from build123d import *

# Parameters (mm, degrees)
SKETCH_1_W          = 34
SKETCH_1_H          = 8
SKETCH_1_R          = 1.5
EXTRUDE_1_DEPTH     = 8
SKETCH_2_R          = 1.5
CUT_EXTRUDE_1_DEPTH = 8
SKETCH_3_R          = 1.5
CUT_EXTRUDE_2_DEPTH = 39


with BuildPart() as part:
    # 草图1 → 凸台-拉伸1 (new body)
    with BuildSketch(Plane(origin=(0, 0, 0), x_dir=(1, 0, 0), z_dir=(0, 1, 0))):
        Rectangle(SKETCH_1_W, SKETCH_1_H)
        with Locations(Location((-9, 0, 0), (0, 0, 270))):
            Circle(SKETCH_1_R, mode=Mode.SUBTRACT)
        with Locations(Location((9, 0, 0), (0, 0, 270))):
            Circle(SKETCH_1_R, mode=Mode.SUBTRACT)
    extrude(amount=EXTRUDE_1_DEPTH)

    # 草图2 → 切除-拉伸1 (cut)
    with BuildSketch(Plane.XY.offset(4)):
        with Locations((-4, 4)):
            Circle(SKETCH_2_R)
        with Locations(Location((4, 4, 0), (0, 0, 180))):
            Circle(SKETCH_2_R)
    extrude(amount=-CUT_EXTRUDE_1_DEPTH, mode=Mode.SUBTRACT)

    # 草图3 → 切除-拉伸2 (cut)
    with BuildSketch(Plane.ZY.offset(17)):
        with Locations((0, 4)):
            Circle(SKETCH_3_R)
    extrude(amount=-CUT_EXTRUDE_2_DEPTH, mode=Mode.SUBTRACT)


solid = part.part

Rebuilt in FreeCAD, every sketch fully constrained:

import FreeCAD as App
import Part
import Sketcher

doc = App.newDocument("Part")
params = doc.addObject("Spreadsheet::Sheet", "Params")
for row, (alias, value) in enumerate([
    ("sketch1_diameter", "3 mm"),
    ("sketch1_width", "34 mm"),
    ("sketch1_height", "8 mm"),
    ("pad1_length", "8 mm"),
    ("sketch2_diameter", "3 mm"),
    ("pocket1_length", "8 mm"),
    ("sketch3_diameter", "3 mm"),
    ("pocket2_length", "39 mm"),
], start=1):
    params.set(f"A{row}", alias)
    params.set(f"B{row}", "=" + value)
    params.setAlias(f"B{row}", alias)

body = doc.addObject("PartDesign::Body", "Body")

sketch1 = doc.addObject("Sketcher::SketchObject", "Sketch")
body.addObject(sketch1)
sketch1.AttachmentSupport = (doc.XZ_Plane, [""])
sketch1.MapMode = "FlatFace"
sketch1.addGeometry([
    Part.LineSegment(App.Vector(-17, -4, 0), App.Vector(-17, 4, 0)),
    Part.LineSegment(App.Vector(-17, 4, 0), App.Vector(17, 4, 0)),
    Part.LineSegment(App.Vector(17, 4, 0), App.Vector(17, -4, 0)),
    Part.LineSegment(App.Vector(17, -4, 0), App.Vector(-17, -4, 0)),
    Part.Circle(App.Vector(-9, 0, 0), App.Vector(0, 0, 1), 1.5),
    Part.Circle(App.Vector(9, 0, 0), App.Vector(0, 0, 1), 1.5),
], False)
sketch1.addConstraint([
    Sketcher.Constraint("Coincident", 0, 2, 1, 1),
    Sketcher.Constraint("Coincident", 1, 2, 2, 1),
    Sketcher.Constraint("Coincident", 2, 2, 3, 1),
    Sketcher.Constraint("Coincident", 3, 2, 0, 1),
    Sketcher.Constraint("Vertical", 0),
    Sketcher.Constraint("Horizontal", 1),
    Sketcher.Constraint("Vertical", 2),
    Sketcher.Constraint("Horizontal", 3),
    Sketcher.Constraint("Equal", 4, 5),
    Sketcher.Constraint("Symmetric", 4, 3, 5, 3, -1, 1),
    Sketcher.Constraint("Symmetric", 0, 2, 2, 2, -1, 1),
    Sketcher.Constraint("PointOnObject", 4, 3, -1),
    Sketcher.Constraint("Diameter", 4, 3.0),
    Sketcher.Constraint("DistanceX", 1, 1, 1, 2, 34.0),
    Sketcher.Constraint("DistanceY", 0, 1, 0, 2, 8.0),
    Sketcher.Constraint("DistanceX", 4, 3, -1, 1, 9.0),
])
sketch1.setExpression("Constraints[12]", "Params.sketch1_diameter")
sketch1.setExpression("Constraints[13]", "Params.sketch1_width")
sketch1.setExpression("Constraints[14]", "Params.sketch1_height")
pad1 = doc.addObject("PartDesign::Pad", "Pad")
body.addObject(pad1)
pad1.Profile = sketch1
pad1.setExpression("Length", "Params.pad1_length")
pad1.Reversed = True

sketch2 = doc.addObject("Sketcher::SketchObject", "Sketch001")
body.addObject(sketch2)
sketch2.AttachmentSupport = (doc.XY_Plane, [""])
sketch2.MapMode = "FlatFace"
sketch2.AttachmentOffset = App.Placement(App.Vector(0, 0, 4), App.Rotation())
sketch2.addGeometry([
    Part.Circle(App.Vector(-4, 4, 0), App.Vector(0, 0, 1), 1.5),
    Part.Circle(App.Vector(4, 4, 0), App.Vector(0, 0, 1), 1.5),
], False)
sketch2.addConstraint([
    Sketcher.Constraint("Equal", 0, 1),
    Sketcher.Constraint("Symmetric", 0, 3, 1, 3, -2),
    Sketcher.Constraint("Diameter", 0, 3.0),
    Sketcher.Constraint("DistanceX", 0, 3, -1, 1, 4.0),
    Sketcher.Constraint("DistanceY", -1, 1, 0, 3, 4.0),
])
sketch2.setExpression("Constraints[2]", "Params.sketch2_diameter")
pocket1 = doc.addObject("PartDesign::Pocket", "Pocket")
body.addObject(pocket1)
pocket1.Profile = sketch2
pocket1.setExpression("Length", "Params.pocket1_length")

sketch3 = doc.addObject("Sketcher::SketchObject", "Sketch002")
body.addObject(sketch3)
sketch3.AttachmentSupport = (doc.YZ_Plane, [""])
sketch3.MapMode = "FlatFace"
sketch3.AttachmentOffset = App.Placement(App.Vector(0, 0, -17), App.Rotation())
sketch3.addGeometry(Part.Circle(App.Vector(4, 0, 0), App.Vector(0, 0, 1), 1.5), False)
sketch3.addConstraint([
    Sketcher.Constraint("PointOnObject", 0, 3, -1),
    Sketcher.Constraint("Diameter", 0, 3.0),
    Sketcher.Constraint("DistanceX", -1, 1, 0, 3, 4.0),
])
sketch3.setExpression("Constraints[1]", "Params.sketch3_diameter")
pocket2 = doc.addObject("PartDesign::Pocket", "Pocket001")
body.addObject(pocket2)
pocket2.Profile = sketch3
pocket2.setExpression("Length", "Params.pocket2_length")
pocket2.Reversed = True

doc.recompute()
